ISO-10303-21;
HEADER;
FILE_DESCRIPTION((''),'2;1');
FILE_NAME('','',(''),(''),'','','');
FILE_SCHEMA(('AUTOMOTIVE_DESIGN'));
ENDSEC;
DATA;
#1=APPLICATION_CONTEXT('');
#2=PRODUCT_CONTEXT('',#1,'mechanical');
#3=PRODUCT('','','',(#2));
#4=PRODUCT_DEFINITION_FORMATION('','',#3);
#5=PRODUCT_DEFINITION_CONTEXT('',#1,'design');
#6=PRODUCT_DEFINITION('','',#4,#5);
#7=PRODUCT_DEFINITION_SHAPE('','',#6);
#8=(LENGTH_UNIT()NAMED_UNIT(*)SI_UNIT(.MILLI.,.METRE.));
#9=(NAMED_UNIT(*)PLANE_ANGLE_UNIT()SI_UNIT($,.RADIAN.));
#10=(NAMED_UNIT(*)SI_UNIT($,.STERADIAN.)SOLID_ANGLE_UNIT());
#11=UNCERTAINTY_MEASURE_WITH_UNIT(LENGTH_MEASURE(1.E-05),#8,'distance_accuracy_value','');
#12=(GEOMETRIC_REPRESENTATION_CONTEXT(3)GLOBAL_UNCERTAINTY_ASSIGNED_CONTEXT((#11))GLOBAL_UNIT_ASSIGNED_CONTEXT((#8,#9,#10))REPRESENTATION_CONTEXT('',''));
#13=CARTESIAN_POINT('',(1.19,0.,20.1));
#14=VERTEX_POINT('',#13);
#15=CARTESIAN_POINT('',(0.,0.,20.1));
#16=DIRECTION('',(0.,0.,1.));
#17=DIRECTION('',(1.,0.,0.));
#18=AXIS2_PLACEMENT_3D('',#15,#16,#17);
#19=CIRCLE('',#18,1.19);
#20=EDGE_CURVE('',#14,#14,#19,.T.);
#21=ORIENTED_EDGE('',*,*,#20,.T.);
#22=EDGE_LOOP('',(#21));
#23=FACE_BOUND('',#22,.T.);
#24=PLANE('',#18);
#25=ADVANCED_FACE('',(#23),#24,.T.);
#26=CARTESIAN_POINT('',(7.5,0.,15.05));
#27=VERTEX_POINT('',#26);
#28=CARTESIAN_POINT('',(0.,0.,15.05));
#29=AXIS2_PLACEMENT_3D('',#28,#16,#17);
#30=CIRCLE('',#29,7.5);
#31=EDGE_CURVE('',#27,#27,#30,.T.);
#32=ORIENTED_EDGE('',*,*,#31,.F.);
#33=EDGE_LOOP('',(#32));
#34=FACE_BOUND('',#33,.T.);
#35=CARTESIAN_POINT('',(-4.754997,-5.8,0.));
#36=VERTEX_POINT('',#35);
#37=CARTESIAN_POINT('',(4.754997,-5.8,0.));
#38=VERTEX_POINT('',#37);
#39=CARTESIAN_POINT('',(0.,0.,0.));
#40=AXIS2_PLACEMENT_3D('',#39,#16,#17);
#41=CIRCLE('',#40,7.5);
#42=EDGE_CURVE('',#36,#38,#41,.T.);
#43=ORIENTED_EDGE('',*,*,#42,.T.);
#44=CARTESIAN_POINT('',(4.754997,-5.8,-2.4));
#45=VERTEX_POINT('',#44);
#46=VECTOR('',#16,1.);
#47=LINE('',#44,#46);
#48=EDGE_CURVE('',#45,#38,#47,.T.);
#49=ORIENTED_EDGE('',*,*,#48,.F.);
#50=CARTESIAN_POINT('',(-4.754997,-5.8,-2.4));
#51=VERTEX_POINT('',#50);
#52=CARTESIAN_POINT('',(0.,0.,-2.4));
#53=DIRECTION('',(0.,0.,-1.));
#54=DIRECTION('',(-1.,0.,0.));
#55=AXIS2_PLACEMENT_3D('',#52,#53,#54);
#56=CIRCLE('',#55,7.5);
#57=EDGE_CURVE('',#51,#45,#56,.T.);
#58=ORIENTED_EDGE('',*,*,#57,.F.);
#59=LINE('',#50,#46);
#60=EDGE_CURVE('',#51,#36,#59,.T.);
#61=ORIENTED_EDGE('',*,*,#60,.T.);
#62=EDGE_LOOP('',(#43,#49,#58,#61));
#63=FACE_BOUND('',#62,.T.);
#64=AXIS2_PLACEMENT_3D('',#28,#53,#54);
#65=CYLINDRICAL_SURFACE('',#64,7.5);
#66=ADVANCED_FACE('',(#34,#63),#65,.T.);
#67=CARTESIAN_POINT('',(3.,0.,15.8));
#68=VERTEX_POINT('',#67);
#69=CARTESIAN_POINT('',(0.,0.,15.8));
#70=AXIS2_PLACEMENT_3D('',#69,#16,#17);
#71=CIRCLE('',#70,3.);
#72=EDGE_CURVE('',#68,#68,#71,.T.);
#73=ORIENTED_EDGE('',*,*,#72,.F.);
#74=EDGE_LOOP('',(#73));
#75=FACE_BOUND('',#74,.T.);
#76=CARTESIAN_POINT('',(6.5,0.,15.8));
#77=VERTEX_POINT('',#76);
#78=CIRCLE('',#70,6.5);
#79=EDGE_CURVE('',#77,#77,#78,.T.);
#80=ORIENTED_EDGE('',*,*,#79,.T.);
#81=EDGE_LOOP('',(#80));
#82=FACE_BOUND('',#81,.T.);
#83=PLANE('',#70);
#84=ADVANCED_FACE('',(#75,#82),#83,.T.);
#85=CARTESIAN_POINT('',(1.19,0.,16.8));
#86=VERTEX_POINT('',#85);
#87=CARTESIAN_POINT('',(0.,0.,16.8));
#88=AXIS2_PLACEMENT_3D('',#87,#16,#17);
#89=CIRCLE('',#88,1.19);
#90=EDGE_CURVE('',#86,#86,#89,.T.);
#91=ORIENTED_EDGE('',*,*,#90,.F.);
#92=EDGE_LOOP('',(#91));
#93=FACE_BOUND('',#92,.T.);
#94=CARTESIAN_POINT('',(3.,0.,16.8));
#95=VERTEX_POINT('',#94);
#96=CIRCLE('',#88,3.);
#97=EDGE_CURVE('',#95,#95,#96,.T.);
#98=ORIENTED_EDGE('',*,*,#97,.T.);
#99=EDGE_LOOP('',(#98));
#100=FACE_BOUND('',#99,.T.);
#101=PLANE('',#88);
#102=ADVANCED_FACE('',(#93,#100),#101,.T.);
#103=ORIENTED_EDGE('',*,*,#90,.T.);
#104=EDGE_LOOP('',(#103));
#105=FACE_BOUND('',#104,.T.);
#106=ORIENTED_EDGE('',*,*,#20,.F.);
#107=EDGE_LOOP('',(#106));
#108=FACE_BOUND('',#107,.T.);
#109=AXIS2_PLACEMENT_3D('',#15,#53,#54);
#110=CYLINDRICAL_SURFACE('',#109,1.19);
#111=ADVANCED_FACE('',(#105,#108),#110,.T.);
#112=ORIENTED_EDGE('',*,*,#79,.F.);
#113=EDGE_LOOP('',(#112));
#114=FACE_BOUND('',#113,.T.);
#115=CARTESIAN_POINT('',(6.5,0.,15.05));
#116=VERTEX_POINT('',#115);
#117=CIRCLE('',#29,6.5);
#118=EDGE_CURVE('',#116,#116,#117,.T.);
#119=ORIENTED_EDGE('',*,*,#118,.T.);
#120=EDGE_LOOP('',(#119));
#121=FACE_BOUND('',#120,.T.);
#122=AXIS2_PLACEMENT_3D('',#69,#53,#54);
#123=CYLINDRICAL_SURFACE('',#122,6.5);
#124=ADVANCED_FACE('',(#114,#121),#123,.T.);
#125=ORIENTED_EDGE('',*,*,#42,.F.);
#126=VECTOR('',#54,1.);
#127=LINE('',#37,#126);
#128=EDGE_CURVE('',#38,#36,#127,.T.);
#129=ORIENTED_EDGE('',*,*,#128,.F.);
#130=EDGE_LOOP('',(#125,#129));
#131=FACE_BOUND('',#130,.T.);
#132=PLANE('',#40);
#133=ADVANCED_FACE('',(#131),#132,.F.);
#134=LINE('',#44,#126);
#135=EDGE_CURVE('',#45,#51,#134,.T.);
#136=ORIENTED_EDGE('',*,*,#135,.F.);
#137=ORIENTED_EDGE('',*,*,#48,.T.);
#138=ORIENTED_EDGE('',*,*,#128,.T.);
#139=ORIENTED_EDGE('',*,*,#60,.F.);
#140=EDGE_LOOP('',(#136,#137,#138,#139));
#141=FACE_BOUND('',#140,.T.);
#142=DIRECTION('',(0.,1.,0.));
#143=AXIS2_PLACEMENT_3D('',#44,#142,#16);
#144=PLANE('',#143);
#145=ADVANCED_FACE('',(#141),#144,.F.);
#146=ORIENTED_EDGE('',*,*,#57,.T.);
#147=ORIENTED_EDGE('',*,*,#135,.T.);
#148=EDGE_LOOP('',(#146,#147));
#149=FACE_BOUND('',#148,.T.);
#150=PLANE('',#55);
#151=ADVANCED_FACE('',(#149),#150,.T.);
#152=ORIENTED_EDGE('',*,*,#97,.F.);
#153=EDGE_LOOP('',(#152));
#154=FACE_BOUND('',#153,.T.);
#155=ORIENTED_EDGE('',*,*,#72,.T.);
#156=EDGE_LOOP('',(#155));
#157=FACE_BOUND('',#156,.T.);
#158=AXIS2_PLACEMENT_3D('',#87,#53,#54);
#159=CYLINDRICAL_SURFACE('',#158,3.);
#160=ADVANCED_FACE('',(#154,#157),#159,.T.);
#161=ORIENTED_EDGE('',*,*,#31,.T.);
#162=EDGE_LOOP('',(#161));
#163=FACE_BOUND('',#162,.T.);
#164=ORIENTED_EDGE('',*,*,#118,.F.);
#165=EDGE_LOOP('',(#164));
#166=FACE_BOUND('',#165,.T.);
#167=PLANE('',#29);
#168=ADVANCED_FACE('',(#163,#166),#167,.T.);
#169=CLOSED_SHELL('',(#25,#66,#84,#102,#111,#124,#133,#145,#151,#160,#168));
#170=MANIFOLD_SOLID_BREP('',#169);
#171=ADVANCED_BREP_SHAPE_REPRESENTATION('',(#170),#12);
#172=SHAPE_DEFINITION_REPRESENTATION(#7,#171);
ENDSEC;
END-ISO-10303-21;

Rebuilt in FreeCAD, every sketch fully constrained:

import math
import FreeCAD as App
import Part
import Sketcher

doc = App.newDocument("Part")
params = doc.addObject("Spreadsheet::Sheet", "Params")
for row, (alias, value) in enumerate([
    ("sketch1_diameter", "15 mm"),
    ("pad1_length", "15.05 mm"),
    ("sketch2_diameter", "13 mm"),
    ("pad2_length", "0.75 mm"),
    ("sketch3_diameter", "6 mm"),
    ("pad3_length", "1 mm"),
    ("sketch4_diameter", "2.38 mm"),
    ("pad4_length", "3.3 mm"),
    ("sketch5_radius", "7.5 mm"),
    ("pad5_length", "2.4 mm"),
], start=1):
    params.set(f"A{row}", alias)
    params.set(f"B{row}", "=" + value)
    params.setAlias(f"B{row}", alias)

body = doc.addObject("PartDesign::Body", "Body")

sketch1 = body.newObject("Sketcher::SketchObject", "Sketch")
sketch1.AttachmentSupport = (doc.getObject("XY_Plane"), [""])
sketch1.MapMode = "FlatFace"
sketch1.addGeometry(Part.Circle(App.Vector(0, 0, 0), App.Vector(0, 0, 1), 7.5), False)
sketch1.addConstraint([
    Sketcher.Constraint("Coincident", 0, 3, -1, 1),
    Sketcher.Constraint("Diameter", 0, 15.0),
])
sketch1.setExpression("Constraints[1]", "Params.sketch1_diameter")
pad1 = body.newObject("PartDesign::Pad", "Pad")
pad1.Profile = sketch1
pad1.setExpression("Length", "Params.pad1_length")

sketch2 = body.newObject("Sketcher::SketchObject", "Sketch001")
sketch2.AttachmentSupport = (doc.getObject("XY_Plane"), [""])
sketch2.MapMode = "FlatFace"
sketch2.AttachmentOffset = App.Placement(App.Vector(0, 0, 15.05), App.Rotation())
sketch2.addGeometry(Part.Circle(App.Vector(0, 0, 0), App.Vector(0, 0, 1), 6.5), False)
sketch2.addConstraint([
    Sketcher.Constraint("Coincident", 0, 3, -1, 1),
    Sketcher.Constraint("Diameter", 0, 13.0),
])
sketch2.setExpression("Constraints[1]", "Params.sketch2_diameter")
pad2 = body.newObject("PartDesign::Pad", "Pad001")
pad2.Profile = sketch2
pad2.setExpression("Length", "Params.pad2_length")

sketch3 = body.newObject("Sketcher::SketchObject", "Sketch002")
sketch3.AttachmentSupport = (doc.getObject("XY_Plane"), [""])
sketch3.MapMode = "FlatFace"
sketch3.AttachmentOffset = App.Placement(App.Vector(0, 0, 15.8), App.Rotation())
sketch3.addGeometry(Part.Circle(App.Vector(0, 0, 0), App.Vector(0, 0, 1), 3), False)
sketch3.addConstraint([
    Sketcher.Constraint("Coincident", 0, 3, -1, 1),
    Sketcher.Constraint("Diameter", 0, 6.0),
])
sketch3.setExpression("Constraints[1]", "Params.sketch3_diameter")
pad3 = body.newObject("PartDesign::Pad", "Pad002")
pad3.Profile = sketch3
pad3.setExpression("Length", "Params.pad3_length")

sketch4 = body.newObject("Sketcher::SketchObject", "Sketch003")
sketch4.AttachmentSupport = (doc.getObject("XY_Plane"), [""])
sketch4.MapMode = "FlatFace"
sketch4.AttachmentOffset = App.Placement(App.Vector(0, 0, 16.8), App.Rotation())
sketch4.addGeometry(Part.Circle(App.Vector(0, 0, 0), App.Vector(0, 0, 1), 1.19), False)
sketch4.addConstraint([
    Sketcher.Constraint("Coincident", 0, 3, -1, 1),
    Sketcher.Constraint("Diameter", 0, 2.38),
])
sketch4.setExpression("Constraints[1]", "Params.sketch4_diameter")
pad4 = body.newObject("PartDesign::Pad", "Pad003")
pad4.Profile = sketch4
pad4.setExpression("Length", "Params.pad4_length")

sketch5 = body.newObject("Sketcher::SketchObject", "Sketch004")
sketch5.AttachmentSupport = (doc.getObject("XY_Plane"), [""])
sketch5.MapMode = "FlatFace"
sketch5.AttachmentOffset = App.Placement(App.Vector(0, 0, -2.4), App.Rotation())
sketch5.addGeometry([
    Part.LineSegment(App.Vector(4.754997, -5.8, 0), App.Vector(-4.754997, -5.8, 0)),
    Part.ArcOfCircle(Part.Circle(App.Vector(0, 0, 0), App.Vector(0, 0, 1), 7.5), math.radians(-50.65417), math.radians(230.65417)),
], False)
sketch5.addConstraint([
    Sketcher.Constraint("Coincident", 0, 1, 1, 1),
    Sketcher.Constraint("Coincident", 1, 2, 0, 2),
    Sketcher.Constraint("Horizontal", 0),
    Sketcher.Constraint("Coincident", 1, 3, -1, 1),
    Sketcher.Constraint("Radius", 1, 7.5),
    Sketcher.Constraint("DistanceY", 0, 1, -1, 1, 5.8),
])
sketch5.setExpression("Constraints[4]", "Params.sketch5_radius")
pad5 = body.newObject("PartDesign::Pad", "Pad004")
pad5.Profile = sketch5
pad5.setExpression("Length", "Params.pad5_length")

doc.recompute()
